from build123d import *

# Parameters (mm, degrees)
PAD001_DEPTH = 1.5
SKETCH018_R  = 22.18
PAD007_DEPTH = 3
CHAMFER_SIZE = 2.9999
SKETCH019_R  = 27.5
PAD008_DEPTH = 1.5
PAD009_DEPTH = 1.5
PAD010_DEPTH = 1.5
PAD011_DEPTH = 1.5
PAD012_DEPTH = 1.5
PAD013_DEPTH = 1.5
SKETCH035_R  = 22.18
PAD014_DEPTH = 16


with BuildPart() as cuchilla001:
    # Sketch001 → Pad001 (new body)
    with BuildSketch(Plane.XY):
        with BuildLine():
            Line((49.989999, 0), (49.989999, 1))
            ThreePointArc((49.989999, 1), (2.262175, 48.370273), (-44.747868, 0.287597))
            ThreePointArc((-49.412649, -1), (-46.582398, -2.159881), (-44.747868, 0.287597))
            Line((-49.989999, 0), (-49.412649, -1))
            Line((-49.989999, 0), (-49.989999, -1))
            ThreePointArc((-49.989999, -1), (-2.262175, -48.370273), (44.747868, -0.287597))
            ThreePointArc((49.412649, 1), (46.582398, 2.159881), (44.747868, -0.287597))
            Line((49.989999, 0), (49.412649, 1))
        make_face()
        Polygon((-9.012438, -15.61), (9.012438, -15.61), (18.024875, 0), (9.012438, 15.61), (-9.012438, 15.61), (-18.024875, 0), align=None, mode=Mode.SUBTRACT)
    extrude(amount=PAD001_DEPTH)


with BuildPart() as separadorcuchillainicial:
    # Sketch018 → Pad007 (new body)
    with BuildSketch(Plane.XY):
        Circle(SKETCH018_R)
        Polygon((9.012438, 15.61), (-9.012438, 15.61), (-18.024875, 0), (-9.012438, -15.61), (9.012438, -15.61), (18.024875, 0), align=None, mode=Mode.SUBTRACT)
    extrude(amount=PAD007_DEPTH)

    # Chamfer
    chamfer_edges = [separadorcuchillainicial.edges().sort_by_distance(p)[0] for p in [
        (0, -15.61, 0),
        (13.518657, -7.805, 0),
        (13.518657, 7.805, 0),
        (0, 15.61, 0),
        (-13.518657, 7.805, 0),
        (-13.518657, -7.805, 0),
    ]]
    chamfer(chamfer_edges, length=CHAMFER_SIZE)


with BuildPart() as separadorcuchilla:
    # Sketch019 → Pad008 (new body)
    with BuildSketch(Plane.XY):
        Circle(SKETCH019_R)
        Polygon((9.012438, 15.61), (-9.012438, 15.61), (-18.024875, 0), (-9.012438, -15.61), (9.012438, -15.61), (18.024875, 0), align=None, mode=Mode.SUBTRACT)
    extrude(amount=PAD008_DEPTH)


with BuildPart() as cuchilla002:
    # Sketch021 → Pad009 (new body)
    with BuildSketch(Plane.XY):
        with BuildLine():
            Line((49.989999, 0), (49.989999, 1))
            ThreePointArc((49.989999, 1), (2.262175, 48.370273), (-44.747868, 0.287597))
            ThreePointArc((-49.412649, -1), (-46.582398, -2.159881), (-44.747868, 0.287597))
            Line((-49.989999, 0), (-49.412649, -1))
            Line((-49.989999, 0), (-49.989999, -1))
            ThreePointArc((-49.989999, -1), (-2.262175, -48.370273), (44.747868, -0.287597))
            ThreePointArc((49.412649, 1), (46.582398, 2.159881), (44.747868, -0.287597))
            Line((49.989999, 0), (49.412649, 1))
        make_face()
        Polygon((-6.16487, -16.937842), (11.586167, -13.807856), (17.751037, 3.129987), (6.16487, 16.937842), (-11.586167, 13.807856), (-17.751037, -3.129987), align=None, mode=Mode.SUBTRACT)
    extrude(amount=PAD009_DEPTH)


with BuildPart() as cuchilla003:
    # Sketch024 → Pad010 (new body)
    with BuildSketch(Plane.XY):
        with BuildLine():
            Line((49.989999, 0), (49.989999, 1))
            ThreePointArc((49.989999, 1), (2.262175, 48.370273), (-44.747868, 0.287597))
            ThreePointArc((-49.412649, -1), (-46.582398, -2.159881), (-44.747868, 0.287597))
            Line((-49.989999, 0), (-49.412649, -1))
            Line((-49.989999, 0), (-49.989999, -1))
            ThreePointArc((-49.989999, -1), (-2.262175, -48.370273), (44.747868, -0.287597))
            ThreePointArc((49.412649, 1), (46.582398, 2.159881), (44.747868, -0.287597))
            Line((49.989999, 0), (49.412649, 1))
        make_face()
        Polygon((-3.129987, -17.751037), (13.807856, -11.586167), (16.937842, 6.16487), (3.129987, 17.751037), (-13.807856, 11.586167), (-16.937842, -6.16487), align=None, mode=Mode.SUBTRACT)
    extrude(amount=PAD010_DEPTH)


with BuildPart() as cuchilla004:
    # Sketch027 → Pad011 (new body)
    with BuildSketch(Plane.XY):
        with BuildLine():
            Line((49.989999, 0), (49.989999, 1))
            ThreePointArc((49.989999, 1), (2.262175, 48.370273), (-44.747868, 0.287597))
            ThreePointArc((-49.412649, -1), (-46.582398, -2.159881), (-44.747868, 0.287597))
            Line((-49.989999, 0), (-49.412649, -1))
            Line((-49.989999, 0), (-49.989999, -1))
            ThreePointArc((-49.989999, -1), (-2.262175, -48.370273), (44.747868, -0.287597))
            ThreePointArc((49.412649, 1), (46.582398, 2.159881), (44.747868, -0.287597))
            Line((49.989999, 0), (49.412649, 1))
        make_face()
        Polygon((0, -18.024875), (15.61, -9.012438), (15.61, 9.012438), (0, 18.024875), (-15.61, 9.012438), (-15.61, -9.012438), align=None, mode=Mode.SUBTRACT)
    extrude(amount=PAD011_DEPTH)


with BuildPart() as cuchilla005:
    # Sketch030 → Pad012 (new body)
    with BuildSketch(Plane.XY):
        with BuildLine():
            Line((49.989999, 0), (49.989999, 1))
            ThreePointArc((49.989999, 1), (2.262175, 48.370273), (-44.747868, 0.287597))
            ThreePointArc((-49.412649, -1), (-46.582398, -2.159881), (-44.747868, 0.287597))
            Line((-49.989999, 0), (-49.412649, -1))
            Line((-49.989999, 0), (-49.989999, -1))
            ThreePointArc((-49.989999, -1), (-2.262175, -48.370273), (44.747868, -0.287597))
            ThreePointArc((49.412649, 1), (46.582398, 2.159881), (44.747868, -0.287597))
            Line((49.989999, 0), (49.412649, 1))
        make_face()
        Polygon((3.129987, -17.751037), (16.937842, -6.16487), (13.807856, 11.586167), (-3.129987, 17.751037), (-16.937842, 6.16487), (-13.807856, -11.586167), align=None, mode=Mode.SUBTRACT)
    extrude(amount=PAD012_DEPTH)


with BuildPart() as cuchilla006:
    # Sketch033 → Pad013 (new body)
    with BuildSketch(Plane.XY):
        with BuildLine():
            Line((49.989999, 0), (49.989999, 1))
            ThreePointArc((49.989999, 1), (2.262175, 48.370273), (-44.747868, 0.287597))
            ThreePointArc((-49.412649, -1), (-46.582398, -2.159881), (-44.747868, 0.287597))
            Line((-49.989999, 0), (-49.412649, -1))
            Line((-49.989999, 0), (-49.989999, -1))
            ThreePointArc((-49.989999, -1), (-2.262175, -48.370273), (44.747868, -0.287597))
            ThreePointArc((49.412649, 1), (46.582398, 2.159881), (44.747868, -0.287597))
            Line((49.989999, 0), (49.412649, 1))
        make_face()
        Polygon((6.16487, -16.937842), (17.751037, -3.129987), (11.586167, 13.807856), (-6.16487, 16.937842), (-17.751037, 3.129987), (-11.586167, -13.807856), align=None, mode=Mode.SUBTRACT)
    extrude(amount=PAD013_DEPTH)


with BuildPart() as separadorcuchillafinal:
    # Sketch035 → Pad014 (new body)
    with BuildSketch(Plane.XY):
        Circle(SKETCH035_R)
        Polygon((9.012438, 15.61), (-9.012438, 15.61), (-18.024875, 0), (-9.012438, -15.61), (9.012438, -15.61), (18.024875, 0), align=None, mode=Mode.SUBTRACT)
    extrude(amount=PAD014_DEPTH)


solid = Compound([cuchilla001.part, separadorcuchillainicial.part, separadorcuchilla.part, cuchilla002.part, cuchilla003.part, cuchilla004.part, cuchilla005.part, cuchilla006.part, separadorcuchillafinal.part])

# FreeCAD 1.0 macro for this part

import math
import FreeCAD as App
import Part
import Sketcher
from FreeCAD import Vector
Q = App.Units.Quantity


def edges_at(feature, points):
    """Names of the edges that pass closest to the given points."""
    edges = feature.Shape.Edges
    near = lambda p: min(range(len(edges)), key=lambda i: edges[i].distToShape(Part.Vertex(*p))[0])
    return sorted({f"Edge{near(p) + 1}" for p in points})


def add_polygon(sketch, points):
    """Adds a closed chain of lines whose ends are joined by coincident constraints."""
    first, n = sketch.GeometryCount, len(points)
    for a, b in zip(points, points[1:] + points[:1]):
        sketch.addGeometry(Part.LineSegment(App.Vector(*a, 0), App.Vector(*b, 0)), False)
    for i in range(n):
        sketch.addConstraint(Sketcher.Constraint("Coincident", first + i, 2, first + (i + 1) % n, 1))

doc = App.newDocument("Part")
params = doc.addObject("Spreadsheet::Sheet", "Params")
for row, (alias, value) in enumerate([
    ("sketch1_radius", "2.5 mm"),
    ("sketch1_height", "1 mm"),
    ("pad1_length", "1.5 mm"),
    ("sketch2_diameter", "44.36 mm"),
    ("pad2_length", "3 mm"),
    ("chamfer_size", "2.9999 mm"),
    ("sketch3_diameter", "55 mm"),
    ("pad3_length", "1.5 mm"),
    ("sketch4_radius", "2.5 mm"),
    ("sketch4_height", "1 mm"),
    ("pad4_length", "1.5 mm"),
    ("sketch5_radius", "2.5 mm"),
    ("sketch5_height", "1 mm"),
    ("pad5_length", "1.5 mm"),
    ("sketch6_radius", "2.5 mm"),
    ("sketch6_height", "1 mm"),
    ("pad6_length", "1.5 mm"),
    ("sketch7_radius", "2.5 mm"),
    ("sketch7_height", "1 mm"),
    ("pad7_length", "1.5 mm"),
    ("sketch8_radius", "2.5 mm"),
    ("sketch8_height", "1 mm"),
    ("pad8_length", "1.5 mm"),
    ("sketch9_diameter", "44.36 mm"),
    ("pad9_length", "16 mm"),
], start=1):
    params.set(f"A{row}", alias)
    params.set(f"B{row}", "=" + value)
    params.setAlias(f"B{row}", alias)

body = doc.addObject("PartDesign::Body", "Body")

# Sketch on XY plane
sketch1 = body.newObject("Sketcher::SketchObject", "Sketch")
sketch1.AttachmentSupport = (doc.getObject("XY_Plane"), [""])
sketch1.MapMode = "FlatFace"
sketch1.addGeometry(Part.LineSegment(Vector(50, 0, 0), Vector(50, 1, 0)), False)  # 0
sketch1.addGeometry(Part.ArcOfCircle(Part.Circle(Vector(2.6, 1, 0), Vector(0, 0, 1), 47.4), math.radians(0), math.radians(181)), False)  # 1
sketch1.addGeometry(Part.ArcOfCircle(Part.Circle(Vector(-47.2, 0.2, 0), Vector(0, 0, 1), 2.5), math.radians(-150), math.radians(1)), False)  # 2
sketch1.addGeometry(Part.LineSegment(Vector(-49.4, -1, 0), Vector(-50, 0, 0)), False)  # 3
sketch1.addGeometry(Part.LineSegment(Vector(-50, 0, 0), Vector(-50, -1, 0)), False)  # 4
sketch1.addGeometry(Part.ArcOfCircle(Part.Circle(Vector(-2.6, -1, 0), Vector(0, 0, 1), 47.4), math.radians(180), math.radians(361)), False)  # 5
sketch1.addGeometry(Part.ArcOfCircle(Part.Circle(Vector(47.2, -0.2, 0), Vector(0, 0, 1), 2.5), math.radians(30), math.radians(181)), False)  # 6
sketch1.addGeometry(Part.LineSegment(Vector(49.4, 1, 0), Vector(50, 0, 0)), False)  # 7
add_polygon(sketch1, [(9, -15.6), (-9, -15.6), (-18, 0), (-9, 15.6), (9, 15.6), (18, 0)])  # lines 8-13
sketch1.addConstraint([
    Sketcher.Constraint("Tangent", 0, 2, 1, 1),
    Sketcher.Constraint("Tangent", 1, 2, 2, 2),
    Sketcher.Constraint("Tangent", 2, 1, 3, 1),
    Sketcher.Constraint("Coincident", 3, 2, 4, 1),
    Sketcher.Constraint("Tangent", 4, 2, 5, 1),
    Sketcher.Constraint("Tangent", 5, 2, 6, 2),
    Sketcher.Constraint("Tangent", 6, 1, 7, 1),
    Sketcher.Constraint("Coincident", 7, 2, 0, 1),
    Sketcher.Constraint("Vertical", 0),
    Sketcher.Constraint("Vertical", 4),
    Sketcher.Constraint("Horizontal", 8),
    Sketcher.Constraint("Horizontal", 11),
    Sketcher.Constraint("Equal", 1, 5),
    Sketcher.Constraint("Equal", 2, 6),
    Sketcher.Constraint("Symmetric", 1, 3, 5, 3, -1, 1),
    Sketcher.Constraint("Symmetric", 2, 1, 6, 1, -1, 1),
    Sketcher.Constraint("Symmetric", 8, 2, 11, 2, -1, 1),
    Sketcher.Constraint("Symmetric", 9, 2, 12, 2, -1, 1),
    Sketcher.Constraint("PointOnObject", 3, 2, -1),
    Sketcher.Constraint("PointOnObject", 9, 2, -1),
    Sketcher.Constraint("Parallel", 7, 9),
    Sketcher.Constraint("Parallel", 10, 13),
    Sketcher.Constraint("Horizontal", 5, 3, 2, 1),
    Sketcher.Constraint("Vertical", 8, 2, 10, 2),
    Sketcher.Constraint("Radius", 2, Q("2.5 mm")),
    Sketcher.Constraint("DistanceY", 0, 1, 0, 2, Q("1 mm")),
    Sketcher.Constraint("Angle", 3, Q("119.999988 deg")),
    Sketcher.Constraint("DistanceX", -1, 1, 0, 2, Q("49.989999 mm")),
    Sketcher.Constraint("DistanceY", 8, 2, -1, 1, Q("15.61 mm")),
    Sketcher.Constraint("DistanceX", 8, 2, 8, 1, Q("18.024876 mm")),
])
sketch1.setExpression("Constraints[30]", "Params.sketch1_radius")
sketch1.setExpression("Constraints[31]", "Params.sketch1_height")
pad1 = body.newObject("PartDesign::Pad", "Pad")
pad1.Profile = sketch1
pad1.setExpression("Length", "Params.pad1_length")
body2 = doc.addObject("PartDesign::Body", "Body001")

# Sketch on XY plane
sketch2 = body2.newObject("Sketcher::SketchObject", "Sketch001")
sketch2.AttachmentSupport = (doc.getObject("XY_Plane001"), [""])
sketch2.MapMode = "FlatFace"
sketch2.addGeometry(Part.Circle(Vector(0, 0, 0), Vector(0, 0, 1), 22), False)  # 0
add_polygon(sketch2, [(-9, 16), (9, 16), (18, 0), (9, -16), (-9, -16), (-18, 0)])  # lines 1-6
sketch2.addConstraint([
    Sketcher.Constraint("Horizontal", 1),
    Sketcher.Constraint("Horizontal", 4),
    Sketcher.Constraint("Coincident", 0, 3, -1, 1),
    Sketcher.Constraint("Symmetric", 1, 2, 4, 2, -1, 1),
    Sketcher.Constraint("Symmetric", 2, 2, 5, 2, -1, 1),
    Sketcher.Constraint("PointOnObject", 2, 2, -1),
    Sketcher.Constraint("Parallel", 3, 6),
    Sketcher.Constraint("Vertical", 1, 2, 3, 2),
    Sketcher.Constraint("Diameter", 0, Q("44.36 mm")),
    Sketcher.Constraint("Angle", 2, Q("-60.000002 deg")),
    Sketcher.Constraint("DistanceY", -1, 1, 1, 2, Q("15.61 mm")),
    Sketcher.Constraint("DistanceX", 1, 1, 1, 2, Q("18.024876 mm")),
])
sketch2.setExpression("Constraints[14]", "Params.sketch2_diameter")
pad2 = body2.newObject("PartDesign::Pad", "Pad001")
pad2.Profile = sketch2
pad2.setExpression("Length", "Params.pad2_length")
doc.recompute()

chamfer = body2.newObject("PartDesign::Chamfer", "Chamfer")
chamfer.Base = (pad2, edges_at(pad2, [
    (0, -15.61, 0),
    (13.519, -7.805, 0),
    (13.519, 7.805, 0),
    (0, 15.61, 0),
    (-13.519, 7.805, 0),
    (-13.519, -7.805, 0),
]))
chamfer.setExpression("Size", "Params.chamfer_size")
body3 = doc.addObject("PartDesign::Body", "Body002")

# Sketch on XY plane
sketch3 = body3.newObject("Sketcher::SketchObject", "Sketch002")
sketch3.AttachmentSupport = (doc.getObject("XY_Plane002"), [""])
sketch3.MapMode = "FlatFace"
sketch3.addGeometry(Part.Circle(Vector(0, 0, 0), Vector(0, 0, 1), 28), False)  # 0
add_polygon(sketch3, [(-9, 16), (9, 16), (18, 0), (9, -16), (-9, -16), (-18, 0)])  # lines 1-6
sketch3.addConstraint([
    Sketcher.Constraint("Horizontal", 1),
    Sketcher.Constraint("Horizontal", 4),
    Sketcher.Constraint("Coincident", 0, 3, -1, 1),
    Sketcher.Constraint("Symmetric", 1, 2, 4, 2, -1, 1),
    Sketcher.Constraint("Symmetric", 2, 2, 5, 2, -1, 1),
    Sketcher.Constraint("PointOnObject", 2, 2, -1),
    Sketcher.Constraint("Parallel", 3, 6),
    Sketcher.Constraint("Vertical", 1, 2, 3, 2),
    Sketcher.Constraint("Diameter", 0, Q("55 mm")),
    Sketcher.Constraint("Angle", 2, Q("-60.000002 deg")),
    Sketcher.Constraint("DistanceY", -1, 1, 1, 2, Q("15.61 mm")),
    Sketcher.Constraint("DistanceX", 1, 1, 1, 2, Q("18.024876 mm")),
])
sketch3.setExpression("Constraints[14]", "Params.sketch3_diameter")
pad3 = body3.newObject("PartDesign::Pad", "Pad002")
pad3.Profile = sketch3
pad3.setExpression("Length", "Params.pad3_length")
body4 = doc.addObject("PartDesign::Body", "Body003")

# Sketch on XY plane
sketch4 = body4.newObject("Sketcher::SketchObject", "Sketch003")
sketch4.AttachmentSupport = (doc.getObject("XY_Plane003"), [""])
sketch4.MapMode = "FlatFace"
sketch4.addGeometry(Part.LineSegment(Vector(50, 0, 0), Vector(50, 1, 0)), False)  # 0
sketch4.addGeometry(Part.ArcOfCircle(Part.Circle(Vector(2.6, 1, 0), Vector(0, 0, 1), 47.4), math.radians(0), math.radians(181)), False)  # 1
sketch4.addGeometry(Part.ArcOfCircle(Part.Circle(Vector(-47.2, 0.2, 0), Vector(0, 0, 1), 2.5), math.radians(-150), math.radians(1)), False)  # 2
sketch4.addGeometry(Part.LineSegment(Vector(-49.4, -1, 0), Vector(-50, 0, 0)), False)  # 3
sketch4.addGeometry(Part.LineSegment(Vector(-50, 0, 0), Vector(-50, -1, 0)), False)  # 4
sketch4.addGeometry(Part.ArcOfCircle(Part.Circle(Vector(-2.6, -1, 0), Vector(0, 0, 1), 47.4), math.radians(180), math.radians(361)), False)  # 5
sketch4.addGeometry(Part.ArcOfCircle(Part.Circle(Vector(47.2, -0.2, 0), Vector(0, 0, 1), 2.5), math.radians(30), math.radians(181)), False)  # 6
sketch4.addGeometry(Part.LineSegment(Vector(49.4, 1, 0), Vector(50, 0, 0)), False)  # 7
add_polygon(sketch4, [(11.6, -13.8), (-6.2, -16.9), (-17.8, -3.1), (-11.6, 13.8), (6.2, 16.9), (17.8, 3.1)])  # lines 8-13
sketch4.addConstraint([
    Sketcher.Constraint("Tangent", 0, 2, 1, 1),
    Sketcher.Constraint("Tangent", 1, 2, 2, 2),
    Sketcher.Constraint("Tangent", 2, 1, 3, 1),
    Sketcher.Constraint("Coincident", 3, 2, 4, 1),
    Sketcher.Constraint("Tangent", 4, 2, 5, 1),
    Sketcher.Constraint("Tangent", 5, 2, 6, 2),
    Sketcher.Constraint("Tangent", 6, 1, 7, 1),
    Sketcher.Constraint("Coincident", 7, 2, 0, 1),
    Sketcher.Constraint("Vertical", 0),
    Sketcher.Constraint("Vertical", 4),
    Sketcher.Constraint("Equal", 1, 5),
    Sketcher.Constraint("Equal", 2, 6),
    Sketcher.Constraint("Symmetric", 1, 3, 5, 3, -1, 1),
    Sketcher.Constraint("Symmetric", 2, 1, 6, 1, -1, 1),
    Sketcher.Constraint("Symmetric", 8, 2, 11, 2, -1, 1),
    Sketcher.Constraint("Symmetric", 9, 2, 12, 2, -1, 1),
    Sketcher.Constraint("Symmetric", 10, 2, 13, 2, -1, 1),
    Sketcher.Constraint("PointOnObject", 3, 2, -1),
    Sketcher.Constraint("Horizontal", 5, 3, 2, 1),
    Sketcher.Constraint("Equal", 8, 9),
    Sketcher.Constraint("Equal", 9, 10),
    Sketcher.Constraint("Radius", 2, Q("2.5 mm")),
    Sketcher.Constraint("DistanceY", 0, 1, 0, 2, Q("1 mm")),
    Sketcher.Constraint("Angle", 3, Q("119.999988 deg")),
    Sketcher.Constraint("Angle", 8, Q("-170.000002 deg")),
    Sketcher.Constraint("Angle", 9, Q("130.000002 deg")),
    Sketcher.Constraint("Angle", 10, Q("70.000002 deg")),
    Sketcher.Constraint("DistanceX", -1, 1, 0, 2, Q("49.989999 mm")),
    Sketcher.Constraint("DistanceX", 1, 2, 10, 2, Q("33.161701 mm")),
])
sketch4.setExpression("Constraints[27]", "Params.sketch4_radius")
sketch4.setExpression("Constraints[28]", "Params.sketch4_height")
pad4 = body4.newObject("PartDesign::Pad", "Pad003")
pad4.Profile = sketch4
pad4.setExpression("Length", "Params.pad4_length")
body5 = doc.addObject("PartDesign::Body", "Body004")

# Sketch on XY plane
sketch5 = body5.newObject("Sketcher::SketchObject", "Sketch004")
sketch5.AttachmentSupport = (doc.getObject("XY_Plane004"), [""])
sketch5.MapMode = "FlatFace"
sketch5.addGeometry(Part.LineSegment(Vector(50, 0, 0), Vector(50, 1, 0)), False)  # 0
sketch5.addGeometry(Part.ArcOfCircle(Part.Circle(Vector(2.6, 1, 0), Vector(0, 0, 1), 47.4), math.radians(0), math.radians(181)), False)  # 1
sketch5.addGeometry(Part.ArcOfCircle(Part.Circle(Vector(-47.2, 0.2, 0), Vector(0, 0, 1), 2.5), math.radians(-150), math.radians(1)), False)  # 2
sketch5.addGeometry(Part.LineSegment(Vector(-49.4, -1, 0), Vector(-50, 0, 0)), False)  # 3
sketch5.addGeometry(Part.LineSegment(Vector(-50, 0, 0), Vector(-50, -1, 0)), False)  # 4
sketch5.addGeometry(Part.ArcOfCircle(Part.Circle(Vector(-2.6, -1, 0), Vector(0, 0, 1), 47.4), math.radians(180), math.radians(361)), False)  # 5
sketch5.addGeometry(Part.ArcOfCircle(Part.Circle(Vector(47.2, -0.2, 0), Vector(0, 0, 1), 2.5), math.radians(30), math.radians(181)), False)  # 6
sketch5.addGeometry(Part.LineSegment(Vector(49.4, 1, 0), Vector(50, 0, 0)), False)  # 7
add_polygon(sketch5, [(13.8, -11.6), (-3.1, -17.8), (-16.9, -6.2), (-13.8, 11.6), (3.1, 17.8), (16.9, 6.2)])  # lines 8-13
sketch5.addConstraint([
    Sketcher.Constraint("Tangent", 0, 2, 1, 1),
    Sketcher.Constraint("Tangent", 1, 2, 2, 2),
    Sketcher.Constraint("Tangent", 2, 1, 3, 1),
    Sketcher.Constraint("Coincident", 3, 2, 4, 1),
    Sketcher.Constraint("Tangent", 4, 2, 5, 1),
    Sketcher.Constraint("Tangent", 5, 2, 6, 2),
    Sketcher.Constraint("Tangent", 6, 1, 7, 1),
    Sketcher.Constraint("Coincident", 7, 2, 0, 1),
    Sketcher.Constraint("Vertical", 0),
    Sketcher.Constraint("Vertical", 4),
    Sketcher.Constraint("Equal", 1, 5),
    Sketcher.Constraint("Equal", 2, 6),
    Sketcher.Constraint("Symmetric", 1, 3, 5, 3, -1, 1),
    Sketcher.Constraint("Symmetric", 2, 1, 6, 1, -1, 1),
    Sketcher.Constraint("Symmetric", 8, 2, 11, 2, -1, 1),
    Sketcher.Constraint("Symmetric", 9, 2, 12, 2, -1, 1),
    Sketcher.Constraint("Symmetric", 10, 2, 13, 2, -1, 1),
    Sketcher.Constraint("PointOnObject", 3, 2, -1),
    Sketcher.Constraint("Horizontal", 5, 3, 2, 1),
    Sketcher.Constraint("Equal", 8, 9),
    Sketcher.Constraint("Equal", 9, 10),
    Sketcher.Constraint("Radius", 2, Q("2.5 mm")),
    Sketcher.Constraint("DistanceY", 0, 1, 0, 2, Q("1 mm")),
    Sketcher.Constraint("Angle", 3, Q("119.999988 deg")),
    Sketcher.Constraint("Angle", 8, Q("-160.000002 deg")),
    Sketcher.Constraint("Angle", 9, Q("139.999998 deg")),
    Sketcher.Constraint("Angle", 10, Q("80.000002 deg")),
    Sketcher.Constraint("DistanceX", -1, 1, 0, 2, Q("49.989999 mm")),
    Sketcher.Constraint("DistanceX", 8, 2, 5, 3, Q("0.5116 mm")),
])
sketch5.setExpression("Constraints[27]", "Params.sketch5_radius")
sketch5.setExpression("Constraints[28]", "Params.sketch5_height")
pad5 = body5.newObject("PartDesign::Pad", "Pad004")
pad5.Profile = sketch5
pad5.setExpression("Length", "Params.pad5_length")
body6 = doc.addObject("PartDesign::Body", "Body005")

# Sketch on XY plane
sketch6 = body6.newObject("Sketcher::SketchObject", "Sketch005")
sketch6.AttachmentSupport = (doc.getObject("XY_Plane005"), [""])
sketch6.MapMode = "FlatFace"
sketch6.addGeometry(Part.LineSegment(Vector(50, 0, 0), Vector(50, 1, 0)), False)  # 0
sketch6.addGeometry(Part.ArcOfCircle(Part.Circle(Vector(2.6, 1, 0), Vector(0, 0, 1), 47.4), math.radians(0), math.radians(181)), False)  # 1
sketch6.addGeometry(Part.ArcOfCircle(Part.Circle(Vector(-47.2, 0.2, 0), Vector(0, 0, 1), 2.5), math.radians(-150), math.radians(1)), False)  # 2
sketch6.addGeometry(Part.LineSegment(Vector(-49.4, -1, 0), Vector(-50, 0, 0)), False)  # 3
sketch6.addGeometry(Part.LineSegment(Vector(-50, 0, 0), Vector(-50, -1, 0)), False)  # 4
sketch6.addGeometry(Part.ArcOfCircle(Part.Circle(Vector(-2.6, -1, 0), Vector(0, 0, 1), 47.4), math.radians(180), math.radians(361)), False)  # 5
sketch6.addGeometry(Part.ArcOfCircle(Part.Circle(Vector(47.2, -0.2, 0), Vector(0, 0, 1), 2.5), math.radians(30), math.radians(181)), False)  # 6
sketch6.addGeometry(Part.LineSegment(Vector(49.4, 1, 0), Vector(50, 0, 0)), False)  # 7
add_polygon(sketch6, [(15.6, -9), (0, -18), (-15.6, -9), (-15.6, 9), (0, 18), (15.6, 9)])  # lines 8-13
sketch6.addConstraint([
    Sketcher.Constraint("Tangent", 0, 2, 1, 1),
    Sketcher.Constraint("Tangent", 1, 2, 2, 2),
    Sketcher.Constraint("Tangent", 2, 1, 3, 1),
    Sketcher.Constraint("Coincident", 3, 2, 4, 1),
    Sketcher.Constraint("Tangent", 4, 2, 5, 1),
    Sketcher.Constraint("Tangent", 5, 2, 6, 2),
    Sketcher.Constraint("Tangent", 6, 1, 7, 1),
    Sketcher.Constraint("Coincident", 7, 2, 0, 1),
    Sketcher.Constraint("Vertical", 0),
    Sketcher.Constraint("Vertical", 4),
    Sketcher.Constraint("Vertical", 10),
    Sketcher.Constraint("Vertical", 13),
    Sketcher.Constraint("Equal", 1, 5),
    Sketcher.Constraint("Equal", 2, 6),
    Sketcher.Constraint("Symmetric", 1, 3, 5, 3, -1, 1),
    Sketcher.Constraint("Symmetric", 2, 1, 6, 1, -1, 1),
    Sketcher.Constraint("Symmetric", 8, 2, 11, 2, -1, 1),
    Sketcher.Constraint("Symmetric", 9, 2, 12, 2, -1, 1),
    Sketcher.Constraint("PointOnObject", 3, 2, -1),
    Sketcher.Constraint("PointOnObject", 8, 2, -2),
    Sketcher.Constraint("Perpendicular", 7, 8),
    Sketcher.Constraint("Parallel", 8, 11),
    Sketcher.Constraint("Horizontal", 5, 3, 2, 1),
    Sketcher.Constraint("Horizontal", 10, 2, 12, 2),
    Sketcher.Constraint("Radius", 2, Q("2.5 mm")),
    Sketcher.Constraint("DistanceY", 0, 1, 0, 2, Q("1 mm")),
    Sketcher.Constraint("Angle", 3, Q("119.999988 deg")),
    Sketcher.Constraint("DistanceX", -1, 1, 0, 2, Q("49.989999 mm")),
    Sketcher.Constraint("DistanceX", 9, 2, -1, 1, Q("15.61 mm")),
    Sketcher.Constraint("DistanceY", 10, 1, 10, 2, Q("18.024876 mm")),
])
sketch6.setExpression("Constraints[30]", "Params.sketch6_radius")
sketch6.setExpression("Constraints[31]", "Params.sketch6_height")
pad6 = body6.newObject("PartDesign::Pad", "Pad005")
pad6.Profile = sketch6
pad6.setExpression("Length", "Params.pad6_length")
body7 = doc.addObject("PartDesign::Body", "Body006")

# Sketch on XY plane
sketch7 = body7.newObject("Sketcher::SketchObject", "Sketch006")
sketch7.AttachmentSupport = (doc.getObject("XY_Plane006"), [""])
sketch7.MapMode = "FlatFace"
sketch7.addGeometry(Part.LineSegment(Vector(50, 0, 0), Vector(50, 1, 0)), False)  # 0
sketch7.addGeometry(Part.ArcOfCircle(Part.Circle(Vector(2.6, 1, 0), Vector(0, 0, 1), 47.4), math.radians(0), math.radians(181)), False)  # 1
sketch7.addGeometry(Part.ArcOfCircle(Part.Circle(Vector(-47.2, 0.2, 0), Vector(0, 0, 1), 2.5), math.radians(-150), math.radians(1)), False)  # 2
sketch7.addGeometry(Part.LineSegment(Vector(-49.4, -1, 0), Vector(-50, 0, 0)), False)  # 3
sketch7.addGeometry(Part.LineSegment(Vector(-50, 0, 0), Vector(-50, -1, 0)), False)  # 4
sketch7.addGeometry(Part.ArcOfCircle(Part.Circle(Vector(-2.6, -1, 0), Vector(0, 0, 1), 47.4), math.radians(180), math.radians(361)), False)  # 5
sketch7.addGeometry(Part.ArcOfCircle(Part.Circle(Vector(47.2, -0.2, 0), Vector(0, 0, 1), 2.5), math.radians(30), math.radians(181)), False)  # 6
sketch7.addGeometry(Part.LineSegment(Vector(49.4, 1, 0), Vector(50, 0, 0)), False)  # 7
add_polygon(sketch7, [(16.9, -6.2), (3.1, -17.8), (-13.8, -11.6), (-16.9, 6.2), (-3.1, 17.8), (13.8, 11.6)])  # lines 8-13
sketch7.addConstraint([
    Sketcher.Constraint("Tangent", 0, 2, 1, 1),
    Sketcher.Constraint("Tangent", 1, 2, 2, 2),
    Sketcher.Constraint("Tangent", 2, 1, 3, 1),
    Sketcher.Constraint("Coincident", 3, 2, 4, 1),
    Sketcher.Constraint("Tangent", 4, 2, 5, 1),
    Sketcher.Constraint("Tangent", 5, 2, 6, 2),
    Sketcher.Constraint("Tangent", 6, 1, 7, 1),
    Sketcher.Constraint("Coincident", 7, 2, 0, 1),
    Sketcher.Constraint("Vertical", 0),
    Sketcher.Constraint("Vertical", 4),
    Sketcher.Constraint("Equal", 1, 5),
    Sketcher.Constraint("Equal", 2, 6),
    Sketcher.Constraint("Symmetric", 1, 3, 5, 3, -1, 1),
    Sketcher.Constraint("Symmetric", 2, 1, 6, 1, -1, 1),
    Sketcher.Constraint("Symmetric", 8, 2, 11, 2, -1, 1),
    Sketcher.Constraint("Symmetric", 9, 2, 12, 2, -1, 1),
    Sketcher.Constraint("Symmetric", 10, 2, 13, 2, -1, 1),
    Sketcher.Constraint("PointOnObject", 3, 2, -1),
    Sketcher.Constraint("Horizontal", 5, 3, 2, 1),
    Sketcher.Constraint("Equal", 8, 9),
    Sketcher.Constraint("Equal", 9, 10),
    Sketcher.Constraint("Radius", 2, Q("2.5 mm")),
    Sketcher.Constraint("DistanceY", 0, 1, 0, 2, Q("1 mm")),
    Sketcher.Constraint("Angle", 3, Q("119.999988 deg")),
    Sketcher.Constraint("Angle", 8, Q("-139.999998 deg")),
    Sketcher.Constraint("Angle", 9, Q("160.000002 deg")),
    Sketcher.Constraint("Angle", 10, Q("99.999998 deg")),
    Sketcher.Constraint("DistanceX", -1, 1, 0, 2, Q("49.989999 mm")),
    Sketcher.Constraint("DistanceX", 1, 3, 8, 2, Q("0.5116 mm")),
])
sketch7.setExpression("Constraints[27]", "Params.sketch7_radius")
sketch7.setExpression("Constraints[28]", "Params.sketch7_height")
pad7 = body7.newObject("PartDesign::Pad", "Pad006")
pad7.Profile = sketch7
pad7.setExpression("Length", "Params.pad7_length")
body8 = doc.addObject("PartDesign::Body", "Body007")

# Sketch on XY plane
sketch8 = body8.newObject("Sketcher::SketchObject", "Sketch007")
sketch8.AttachmentSupport = (doc.getObject("XY_Plane007"), [""])
sketch8.MapMode = "FlatFace"
sketch8.addGeometry(Part.LineSegment(Vector(50, 0, 0), Vector(50, 1, 0)), False)  # 0
sketch8.addGeometry(Part.ArcOfCircle(Part.Circle(Vector(2.6, 1, 0), Vector(0, 0, 1), 47.4), math.radians(0), math.radians(181)), False)  # 1
sketch8.addGeometry(Part.ArcOfCircle(Part.Circle(Vector(-47.2, 0.2, 0), Vector(0, 0, 1), 2.5), math.radians(-150), math.radians(1)), False)  # 2
sketch8.addGeometry(Part.LineSegment(Vector(-49.4, -1, 0), Vector(-50, 0, 0)), False)  # 3
sketch8.addGeometry(Part.LineSegment(Vector(-50, 0, 0), Vector(-50, -1, 0)), False)  # 4
sketch8.addGeometry(Part.ArcOfCircle(Part.Circle(Vector(-2.6, -1, 0), Vector(0, 0, 1), 47.4), math.radians(180), math.radians(361)), False)  # 5
sketch8.addGeometry(Part.ArcOfCircle(Part.Circle(Vector(47.2, -0.2, 0), Vector(0, 0, 1), 2.5), math.radians(30), math.radians(181)), False)  # 6
sketch8.addGeometry(Part.LineSegment(Vector(49.4, 1, 0), Vector(50, 0, 0)), False)  # 7
add_polygon(sketch8, [(17.8, -3.1), (6.2, -16.9), (-11.6, -13.8), (-17.8, 3.1), (-6.2, 16.9), (11.6, 13.8)])  # lines 8-13
sketch8.addConstraint([
    Sketcher.Constraint("Tangent", 0, 2, 1, 1),
    Sketcher.Constraint("Tangent", 1, 2, 2, 2),
    Sketcher.Constraint("Tangent", 2, 1, 3, 1),
    Sketcher.Constraint("Coincident", 3, 2, 4, 1),
    Sketcher.Constraint("Tangent", 4, 2, 5, 1),
    Sketcher.Constraint("Tangent", 5, 2, 6, 2),
    Sketcher.Constraint("Tangent", 6, 1, 7, 1),
    Sketcher.Constraint("Coincident", 7, 2, 0, 1),
    Sketcher.Constraint("Vertical", 0),
    Sketcher.Constraint("Vertical", 4),
    Sketcher.Constraint("Equal", 1, 5),
    Sketcher.Constraint("Equal", 2, 6),
    Sketcher.Constraint("Symmetric", 1, 3, 5, 3, -1, 1),
    Sketcher.Constraint("Symmetric", 2, 1, 6, 1, -1, 1),
    Sketcher.Constraint("Symmetric", 8, 2, 11, 2, -1, 1),
    Sketcher.Constraint("Symmetric", 9, 2, 12, 2, -1, 1),
    Sketcher.Constraint("Symmetric", 10, 2, 13, 2, -1, 1),
    Sketcher.Constraint("PointOnObject", 3, 2, -1),
    Sketcher.Constraint("Horizontal", 5, 3, 2, 1),
    Sketcher.Constraint("Equal", 8, 9),
    Sketcher.Constraint("Equal", 9, 10),
    Sketcher.Constraint("Radius", 2, Q("2.5 mm")),
    Sketcher.Constraint("DistanceY", 0, 1, 0, 2, Q("1 mm")),
    Sketcher.Constraint("Angle", 3, Q("119.999988 deg")),
    Sketcher.Constraint("Angle", 8, Q("-130.000002 deg")),
    Sketcher.Constraint("Angle", 9, Q("170.000002 deg")),
    Sketcher.Constraint("Angle", 10, Q("109.999998 deg")),
    Sketcher.Constraint("DistanceX", -1, 1, 0, 2, Q("49.989999 mm")),
    Sketcher.Constraint("DistanceX", 1, 2, 9, 2, Q("33.161701 mm")),
])
sketch8.setExpression("Constraints[27]", "Params.sketch8_radius")
sketch8.setExpression("Constraints[28]", "Params.sketch8_height")
pad8 = body8.newObject("PartDesign::Pad", "Pad007")
pad8.Profile = sketch8
pad8.setExpression("Length", "Params.pad8_length")
body9 = doc.addObject("PartDesign::Body", "Body008")

# Sketch on XY plane
sketch9 = body9.newObject("Sketcher::SketchObject", "Sketch008")
sketch9.AttachmentSupport = (doc.getObject("XY_Plane008"), [""])
sketch9.MapMode = "FlatFace"
sketch9.addGeometry(Part.Circle(Vector(0, 0, 0), Vector(0, 0, 1), 22), False)  # 0
add_polygon(sketch9, [(-9, 16), (9, 16), (18, 0), (9, -16), (-9, -16), (-18, 0)])  # lines 1-6
sketch9.addConstraint([
    Sketcher.Constraint("Horizontal", 1),
    Sketcher.Constraint("Horizontal", 4),
    Sketcher.Constraint("Coincident", 0, 3, -1, 1),
    Sketcher.Constraint("Symmetric", 1, 2, 4, 2, -1, 1),
    Sketcher.Constraint("Symmetric", 2, 2, 5, 2, -1, 1),
    Sketcher.Constraint("PointOnObject", 2, 2, -1),
    Sketcher.Constraint("Parallel", 3, 6),
    Sketcher.Constraint("Vertical", 1, 2, 3, 2),
    Sketcher.Constraint("Diameter", 0, Q("44.36 mm")),
    Sketcher.Constraint("Angle", 2, Q("-60.000002 deg")),
    Sketcher.Constraint("DistanceY", -1, 1, 1, 2, Q("15.61 mm")),
    Sketcher.Constraint("DistanceX", 1, 1, 1, 2, Q("18.024876 mm")),
])
sketch9.setExpression("Constraints[14]", "Params.sketch9_diameter")
pad9 = body9.newObject("PartDesign::Pad", "Pad008")
pad9.Profile = sketch9
pad9.setExpression("Length", "Params.pad9_length")

doc.recompute()
